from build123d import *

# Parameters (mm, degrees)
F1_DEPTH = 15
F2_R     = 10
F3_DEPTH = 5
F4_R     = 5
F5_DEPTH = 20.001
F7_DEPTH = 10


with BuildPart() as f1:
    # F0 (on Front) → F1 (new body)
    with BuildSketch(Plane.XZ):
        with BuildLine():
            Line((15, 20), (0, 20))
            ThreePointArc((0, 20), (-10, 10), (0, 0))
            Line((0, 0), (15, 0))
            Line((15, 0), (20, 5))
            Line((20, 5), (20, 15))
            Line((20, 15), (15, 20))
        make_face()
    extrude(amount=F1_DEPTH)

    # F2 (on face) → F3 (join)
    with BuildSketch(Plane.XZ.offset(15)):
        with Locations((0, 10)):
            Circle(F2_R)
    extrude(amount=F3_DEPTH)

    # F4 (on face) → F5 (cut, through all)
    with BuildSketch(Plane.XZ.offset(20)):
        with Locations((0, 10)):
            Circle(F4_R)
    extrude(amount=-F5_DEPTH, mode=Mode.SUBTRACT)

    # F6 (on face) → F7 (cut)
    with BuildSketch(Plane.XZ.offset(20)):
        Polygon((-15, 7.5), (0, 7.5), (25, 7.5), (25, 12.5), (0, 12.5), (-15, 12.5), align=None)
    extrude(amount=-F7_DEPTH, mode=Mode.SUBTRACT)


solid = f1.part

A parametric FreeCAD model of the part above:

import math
import FreeCAD as App
import Part
import Sketcher
from FreeCAD import Vector
Q = App.Units.Quantity

doc = App.newDocument("Part")
body = doc.addObject("PartDesign::Body", "Body")

# Sketch on XZ plane
sketch1 = body.newObject("Sketcher::SketchObject", "Sketch")
sketch1.AttachmentSupport = (doc.getObject("XZ_Plane"), [""])
sketch1.MapMode = "FlatFace"
sketch1.addGeometry([
    Part.LineSegment(Vector(15, 20, 0), Vector(0, 20, 0)),  # 0
    Part.ArcOfCircle(Part.Circle(Vector(0, 10, 0), Vector(0, 0, 1), 10), math.radians(90), math.radians(270)),  # 1
    Part.LineSegment(Vector(0, 0, 0), Vector(15, 0, 0)),  # 2
    Part.LineSegment(Vector(15, 0, 0), Vector(20, 5, 0)),  # 3
    Part.LineSegment(Vector(20, 5, 0), Vector(20, 15, 0)),  # 4
    Part.LineSegment(Vector(20, 15, 0), Vector(15, 20, 0)),  # 5
], False)
sketch1.addConstraint([
    Sketcher.Constraint("Tangent", 0, 2, 1, 1),
    Sketcher.Constraint("Tangent", 1, 2, 2, 1),
    Sketcher.Constraint("Coincident", 2, 2, 3, 1),
    Sketcher.Constraint("Coincident", 3, 2, 4, 1),
    Sketcher.Constraint("Coincident", 4, 2, 5, 1),
    Sketcher.Constraint("Coincident", 5, 2, 0, 1),
    Sketcher.Constraint("Horizontal", 0),
    Sketcher.Constraint("Horizontal", 2),
    Sketcher.Constraint("Vertical", 4),
    Sketcher.Constraint("Coincident", 1, 2, -1, 1),
    Sketcher.Constraint("Perpendicular", 3, 5),
    Sketcher.Constraint("Vertical", 2, 2, 5, 2),
    Sketcher.Constraint("Equal", 3, 5),
    Sketcher.Constraint("Radius", 1, Q("10 mm")),
    Sketcher.Constraint("DistanceX", 0, 2, 0, 1, Q("15 mm")),
    Sketcher.Constraint("DistanceY", 4, 1, 4, 2, Q("10 mm")),
])
pad1 = body.newObject("PartDesign::Pad", "Pad")
pad1.Profile = sketch1
pad1.Length = 15

# Sketch on XZ plane
sketch2 = body.newObject("Sketcher::SketchObject", "Sketch001")
sketch2.AttachmentSupport = (doc.getObject("XZ_Plane"), [""])
sketch2.MapMode = "FlatFace"
sketch2.AttachmentOffset = App.Placement(Vector(0, 0, 15), App.Rotation())
sketch2.addGeometry(Part.Circle(Vector(0, 10, 0), Vector(0, 0, 1), 10), False)
sketch2.addConstraint([
    Sketcher.Constraint("PointOnObject", 0, 3, -2),
    Sketcher.Constraint("Diameter", 0, Q("20 mm")),
    Sketcher.Constraint("DistanceY", -1, 1, 0, 3, Q("10 mm")),
])
pad2 = body.newObject("PartDesign::Pad", "Pad001")
pad2.Profile = sketch2
pad2.Length = 5

# Sketch on XZ plane
sketch3 = body.newObject("Sketcher::SketchObject", "Sketch002")
sketch3.AttachmentSupport = (doc.getObject("XZ_Plane"), [""])
sketch3.MapMode = "FlatFace"
sketch3.AttachmentOffset = App.Placement(Vector(0, 0, 20), App.Rotation())
sketch3.addGeometry(Part.Circle(Vector(0, 10, 0), Vector(0, 0, 1), 5), False)
sketch3.addConstraint([
    Sketcher.Constraint("PointOnObject", 0, 3, -2),
    Sketcher.Constraint("Diameter", 0, Q("10 mm")),
    Sketcher.Constraint("DistanceY", -1, 1, 0, 3, Q("10 mm")),
])
pocket1 = body.newObject("PartDesign::Pocket", "Pocket")
pocket1.Profile = sketch3
pocket1.Type = "ThroughAll"

# Sketch on XZ plane
sketch4 = body.newObject("Sketcher::SketchObject", "Sketch003")
sketch4.AttachmentSupport = (doc.getObject("XZ_Plane"), [""])
sketch4.MapMode = "FlatFace"
sketch4.AttachmentOffset = App.Placement(Vector(0, 0, 20), App.Rotation())
sketch4.addGeometry([
    Part.LineSegment(Vector(-15, 8, 0), Vector(25, 8, 0)),
    Part.LineSegment(Vector(25, 8, 0), Vector(25, 12, 0)),
    Part.LineSegment(Vector(25, 12, 0), Vector(-15, 12, 0)),
    Part.LineSegment(Vector(-15, 12, 0), Vector(-15, 8, 0)),
], False)
sketch4.addConstraint([
    Sketcher.Constraint("Coincident", 0, 2, 1, 1),
    Sketcher.Constraint("Coincident", 1, 2, 2, 1),
    Sketcher.Constraint("Coincident", 2, 2, 3, 1),
    Sketcher.Constraint("Coincident", 3, 2, 0, 1),
    Sketcher.Constraint("Horizontal", 0),
    Sketcher.Constraint("Vertical", 1),
    Sketcher.Constraint("Horizontal", 2),
    Sketcher.Constraint("Vertical", 3),
    Sketcher.Constraint("DistanceX", 0, 1, 0, 2, Q("40 mm")),
    Sketcher.Constraint("DistanceY", 1, 1, 1, 2, Q("5 mm")),
    Sketcher.Constraint("DistanceX", -1, 1, 0, 2, Q("25 mm")),
    Sketcher.Constraint("DistanceY", -1, 1, 0, 2, Q("7.5 mm")),
])
pocket2 = body.newObject("PartDesign::Pocket", "Pocket001")
pocket2.Profile = sketch4
pocket2.Length = 10

doc.recompute()
